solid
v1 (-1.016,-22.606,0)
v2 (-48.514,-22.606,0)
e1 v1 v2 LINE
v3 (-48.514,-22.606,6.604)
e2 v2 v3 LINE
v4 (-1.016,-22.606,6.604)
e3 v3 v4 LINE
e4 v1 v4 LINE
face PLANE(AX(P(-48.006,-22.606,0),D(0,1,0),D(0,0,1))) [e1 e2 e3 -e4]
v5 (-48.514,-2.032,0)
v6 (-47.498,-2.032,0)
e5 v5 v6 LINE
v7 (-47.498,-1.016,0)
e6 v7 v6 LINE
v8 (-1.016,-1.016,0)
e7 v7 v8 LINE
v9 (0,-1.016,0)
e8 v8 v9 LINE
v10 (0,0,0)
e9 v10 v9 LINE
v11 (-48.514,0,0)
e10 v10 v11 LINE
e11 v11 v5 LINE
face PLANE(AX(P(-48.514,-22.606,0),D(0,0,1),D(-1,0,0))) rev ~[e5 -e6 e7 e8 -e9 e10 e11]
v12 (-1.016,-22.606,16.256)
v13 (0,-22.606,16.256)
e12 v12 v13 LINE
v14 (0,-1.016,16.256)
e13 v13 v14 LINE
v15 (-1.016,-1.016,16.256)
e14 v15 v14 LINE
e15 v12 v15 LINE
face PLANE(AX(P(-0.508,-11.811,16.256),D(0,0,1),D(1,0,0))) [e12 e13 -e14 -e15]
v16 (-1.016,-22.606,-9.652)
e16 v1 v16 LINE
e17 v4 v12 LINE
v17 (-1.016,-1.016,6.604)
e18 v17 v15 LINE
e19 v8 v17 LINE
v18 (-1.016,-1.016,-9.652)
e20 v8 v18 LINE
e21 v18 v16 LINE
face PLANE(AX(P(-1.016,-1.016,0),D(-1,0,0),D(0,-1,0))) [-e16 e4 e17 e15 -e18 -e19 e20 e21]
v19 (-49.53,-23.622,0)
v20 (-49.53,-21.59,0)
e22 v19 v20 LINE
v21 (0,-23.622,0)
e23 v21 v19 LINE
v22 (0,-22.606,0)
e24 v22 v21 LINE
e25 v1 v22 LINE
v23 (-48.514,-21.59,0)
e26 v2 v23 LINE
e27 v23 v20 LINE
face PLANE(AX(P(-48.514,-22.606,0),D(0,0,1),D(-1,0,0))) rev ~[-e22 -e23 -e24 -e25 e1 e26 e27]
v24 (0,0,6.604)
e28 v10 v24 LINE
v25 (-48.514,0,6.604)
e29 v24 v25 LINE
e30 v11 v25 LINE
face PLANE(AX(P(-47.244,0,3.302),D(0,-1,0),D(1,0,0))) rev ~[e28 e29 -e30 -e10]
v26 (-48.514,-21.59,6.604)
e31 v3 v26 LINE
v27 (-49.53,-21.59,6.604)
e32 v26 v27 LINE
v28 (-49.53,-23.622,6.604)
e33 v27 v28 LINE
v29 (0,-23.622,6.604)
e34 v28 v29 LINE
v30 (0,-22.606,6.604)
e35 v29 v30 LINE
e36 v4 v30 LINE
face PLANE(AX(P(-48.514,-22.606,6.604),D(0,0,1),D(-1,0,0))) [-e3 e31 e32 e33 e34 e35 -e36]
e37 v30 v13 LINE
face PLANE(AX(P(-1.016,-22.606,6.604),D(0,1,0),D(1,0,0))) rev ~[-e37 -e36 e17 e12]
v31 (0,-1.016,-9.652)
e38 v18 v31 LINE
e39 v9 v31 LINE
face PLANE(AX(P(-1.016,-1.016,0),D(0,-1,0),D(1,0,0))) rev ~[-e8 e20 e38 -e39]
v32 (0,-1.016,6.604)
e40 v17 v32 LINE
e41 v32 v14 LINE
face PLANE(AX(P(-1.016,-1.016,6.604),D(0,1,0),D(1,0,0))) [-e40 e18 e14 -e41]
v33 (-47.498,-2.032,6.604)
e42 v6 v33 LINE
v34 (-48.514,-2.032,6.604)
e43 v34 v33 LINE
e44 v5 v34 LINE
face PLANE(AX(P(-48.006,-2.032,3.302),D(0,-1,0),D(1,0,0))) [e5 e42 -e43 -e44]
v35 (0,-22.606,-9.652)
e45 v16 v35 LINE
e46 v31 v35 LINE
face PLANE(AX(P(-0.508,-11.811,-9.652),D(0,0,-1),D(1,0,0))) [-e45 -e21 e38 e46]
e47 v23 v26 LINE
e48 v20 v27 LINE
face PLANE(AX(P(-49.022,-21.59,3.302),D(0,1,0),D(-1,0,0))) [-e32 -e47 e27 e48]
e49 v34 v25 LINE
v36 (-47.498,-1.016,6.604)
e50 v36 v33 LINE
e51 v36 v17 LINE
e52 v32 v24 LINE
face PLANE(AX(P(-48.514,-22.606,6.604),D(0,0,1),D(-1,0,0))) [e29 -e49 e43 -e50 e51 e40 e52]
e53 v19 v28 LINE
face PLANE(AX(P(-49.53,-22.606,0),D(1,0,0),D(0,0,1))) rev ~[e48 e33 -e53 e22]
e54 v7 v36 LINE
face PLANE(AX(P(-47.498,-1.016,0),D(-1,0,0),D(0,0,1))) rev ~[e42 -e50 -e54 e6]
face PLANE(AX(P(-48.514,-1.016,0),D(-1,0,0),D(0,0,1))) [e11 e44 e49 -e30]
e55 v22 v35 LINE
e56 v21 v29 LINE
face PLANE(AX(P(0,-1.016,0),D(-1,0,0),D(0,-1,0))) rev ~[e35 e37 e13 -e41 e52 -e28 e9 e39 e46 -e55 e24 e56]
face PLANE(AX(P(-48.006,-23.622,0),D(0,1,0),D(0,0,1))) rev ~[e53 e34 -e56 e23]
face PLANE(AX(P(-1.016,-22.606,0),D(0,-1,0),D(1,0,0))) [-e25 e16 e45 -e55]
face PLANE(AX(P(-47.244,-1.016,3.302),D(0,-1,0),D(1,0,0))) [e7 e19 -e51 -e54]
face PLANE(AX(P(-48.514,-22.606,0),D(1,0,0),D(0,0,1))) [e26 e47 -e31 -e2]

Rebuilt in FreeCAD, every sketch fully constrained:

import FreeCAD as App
import Part
import Sketcher
from FreeCAD import Vector
Q = App.Units.Quantity

doc = App.newDocument("Part")
body = doc.addObject("PartDesign::Body", "Body")

# Sketch on XZ plane
sketch1 = doc.addObject("Sketcher::SketchObject", "Sketch")
body.addObject(sketch1)
sketch1.AttachmentSupport = (doc.XZ_Plane, [""])
sketch1.MapMode = "FlatFace"
sketch1.addGeometry(Part.LineSegment(Vector(-47, 7, 0), Vector(-47, 0, 0)), False)
sketch1.addGeometry(Part.LineSegment(Vector(-47, 0, 0), Vector(0, 0, 0)), False)
sketch1.addGeometry(Part.LineSegment(Vector(0, 0, 0), Vector(0, 7, 0)), False)
sketch1.addGeometry(Part.LineSegment(Vector(0, 7, 0), Vector(-47, 7, 0)), False)
sketch1.addConstraint(Sketcher.Constraint("Coincident", 0, 2, 1, 1))
sketch1.addConstraint(Sketcher.Constraint("Coincident", 1, 2, 2, 1))
sketch1.addConstraint(Sketcher.Constraint("Coincident", 2, 2, 3, 1))
sketch1.addConstraint(Sketcher.Constraint("Coincident", 3, 2, 0, 1))
sketch1.addConstraint(Sketcher.Constraint("Vertical", 0))
sketch1.addConstraint(Sketcher.Constraint("Horizontal", 1))
sketch1.addConstraint(Sketcher.Constraint("Vertical", 2))
sketch1.addConstraint(Sketcher.Constraint("Horizontal", 3))
sketch1.addConstraint(Sketcher.Constraint("Coincident", 1, 2, -1, 1))
sketch1.addConstraint(Sketcher.Constraint("DistanceX", 1, 1, 1, 2, Q("1.85 in")))
sketch1.addConstraint(Sketcher.Constraint("DistanceY", 0, 2, 0, 1, Q("0.26 in")))
pad1 = doc.addObject("PartDesign::Pad", "Pad")
body.addObject(pad1)
pad1.Profile = sketch1
pad1.Length = Q("0.04 in")

# Sketch on XZ plane
sketch2 = doc.addObject("Sketcher::SketchObject", "Sketch001")
body.addObject(sketch2)
sketch2.AttachmentSupport = (doc.XZ_Plane, [""])
sketch2.MapMode = "FlatFace"
sketch2.AttachmentOffset = App.Placement(Vector(0, 0, 0.04 * 25.4), App.Rotation())
sketch2.addGeometry(Part.LineSegment(Vector(-47, 0, 0), Vector(-47, 6.6, 0)), False)
sketch2.addGeometry(Part.LineSegment(Vector(-47, 6.6, 0), Vector(-48.5, 6.6, 0)), False)
sketch2.addGeometry(Part.LineSegment(Vector(-48.5, 6.6, 0), Vector(-48.5, 0, 0)), False)
sketch2.addGeometry(Part.LineSegment(Vector(-48.5, 0, 0), Vector(-47, 0, 0)), False)
sketch2.addConstraint(Sketcher.Constraint("Coincident", 0, 2, 1, 1))
sketch2.addConstraint(Sketcher.Constraint("Coincident", 1, 2, 2, 1))
sketch2.addConstraint(Sketcher.Constraint("Coincident", 2, 2, 3, 1))
sketch2.addConstraint(Sketcher.Constraint("Coincident", 3, 2, 0, 1))
sketch2.addConstraint(Sketcher.Constraint("Vertical", 0))
sketch2.addConstraint(Sketcher.Constraint("Horizontal", 1))
sketch2.addConstraint(Sketcher.Constraint("Vertical", 2))
sketch2.addConstraint(Sketcher.Constraint("Horizontal", 3))
sketch2.addConstraint(Sketcher.Constraint("PointOnObject", 2, 2, -1))
sketch2.addConstraint(Sketcher.Constraint("DistanceX", 1, 2, 1, 1, Q("0.06 in")))
sketch2.addConstraint(Sketcher.Constraint("DistanceY", 0, 1, 0, 2, Q("0.26 in")))
sketch2.addConstraint(Sketcher.Constraint("DistanceX", 0, 2, -1, 1, Q("1.85 in")))
pad2 = doc.addObject("PartDesign::Pad", "Pad001")
body.addObject(pad2)
pad2.Profile = sketch2
pad2.Length = Q("0.04 in")
pad2.Reversed = True

# Sketch on XZ plane
sketch3 = doc.addObject("Sketcher::SketchObject", "Sketch002")
body.addObject(sketch3)
sketch3.AttachmentSupport = (doc.XZ_Plane, [""])
sketch3.MapMode = "FlatFace"
sketch3.AttachmentOffset = App.Placement(Vector(0, 0, 0.04 * 25.4), App.Rotation())
sketch3.addGeometry(Part.LineSegment(Vector(-48.5, 6.6, 0), Vector(-48.5, 0, 0)), False)
sketch3.addGeometry(Part.LineSegment(Vector(-48.5, 0, 0), Vector(-47.5, 0, 0)), False)
sketch3.addGeometry(Part.LineSegment(Vector(-47.5, 0, 0), Vector(-47.5, 6.6, 0)), False)
sketch3.addGeometry(Part.LineSegment(Vector(-47.5, 6.6, 0), Vector(-48.5, 6.6, 0)), False)
sketch3.addConstraint(Sketcher.Constraint("Coincident", 0, 2, 1, 1))
sketch3.addConstraint(Sketcher.Constraint("Coincident", 1, 2, 2, 1))
sketch3.addConstraint(Sketcher.Constraint("Coincident", 2, 2, 3, 1))
sketch3.addConstraint(Sketcher.Constraint("Coincident", 3, 2, 0, 1))
sketch3.addConstraint(Sketcher.Constraint("Vertical", 0))
sketch3.addConstraint(Sketcher.Constraint("Horizontal", 1))
sketch3.addConstraint(Sketcher.Constraint("Vertical", 2))
sketch3.addConstraint(Sketcher.Constraint("Horizontal", 3))
sketch3.addConstraint(Sketcher.Constraint("PointOnObject", 0, 2, -1))
sketch3.addConstraint(Sketcher.Constraint("DistanceX", 1, 1, 1, 2, Q("0.04 in")))
sketch3.addConstraint(Sketcher.Constraint("DistanceY", 0, 2, 0, 1, Q("0.26 in")))
sketch3.addConstraint(Sketcher.Constraint("DistanceX", 0, 2, -1, 1, Q("1.91 in")))
pad3 = doc.addObject("PartDesign::Pad", "Pad002")
body.addObject(pad3)
pad3.Profile = sketch3
pad3.Length = Q("0.04 in")

# Sketch on XZ plane
sketch4 = doc.addObject("Sketcher::SketchObject", "Sketch003")
body.addObject(sketch4)
sketch4.AttachmentSupport = (doc.XZ_Plane, [""])
sketch4.MapMode = "FlatFace"
sketch4.AttachmentOffset = App.Placement(Vector(0, 0, 0.04 * 25.4), App.Rotation())
sketch4.addGeometry(Part.LineSegment(Vector(-1, 6.6, 0), Vector(-1, 0, 0)), False)
sketch4.addGeometry(Part.LineSegment(Vector(-1, 0, 0), Vector(0, 0, 0)), False)
sketch4.addGeometry(Part.LineSegment(Vector(0, 0, 0), Vector(0, 6.6, 0)), False)
sketch4.addGeometry(Part.LineSegment(Vector(0, 6.6, 0), Vector(-1, 6.6, 0)), False)
sketch4.addConstraint(Sketcher.Constraint("Coincident", 0, 2, 1, 1))
sketch4.addConstraint(Sketcher.Constraint("Coincident", 1, 2, 2, 1))
sketch4.addConstraint(Sketcher.Constraint("Coincident", 2, 2, 3, 1))
sketch4.addConstraint(Sketcher.Constraint("Coincident", 3, 2, 0, 1))
sketch4.addConstraint(Sketcher.Constraint("Vertical", 0))
sketch4.addConstraint(Sketcher.Constraint("Horizontal", 1))
sketch4.addConstraint(Sketcher.Constraint("Vertical", 2))
sketch4.addConstraint(Sketcher.Constraint("Horizontal", 3))
sketch4.addConstraint(Sketcher.Constraint("Coincident", 1, 2, -1, 1))
sketch4.addConstraint(Sketcher.Constraint("DistanceX", 1, 1, 1, 2, Q("0.04 in")))
sketch4.addConstraint(Sketcher.Constraint("DistanceY", 0, 2, 0, 1, Q("0.26 in")))
pad4 = doc.addObject("PartDesign::Pad", "Pad003")
body.addObject(pad4)
pad4.Profile = sketch4
pad4.Length = Q("0.85 in")

# Sketch on XZ plane
sketch5 = doc.addObject("Sketcher::SketchObject", "Sketch004")
body.addObject(sketch5)
sketch5.AttachmentSupport = (doc.XZ_Plane, [""])
sketch5.MapMode = "FlatFace"
sketch5.AttachmentOffset = App.Placement(Vector(0, 0, 0.89 * 25.4), App.Rotation())
sketch5.addGeometry(Part.LineSegment(Vector(-1, 6.6, 0), Vector(-1, 0, 0)), False)
sketch5.addGeometry(Part.LineSegment(Vector(-1, 0, 0), Vector(0, 0, 0)), False)
sketch5.addGeometry(Part.LineSegment(Vector(0, 0, 0), Vector(0, 6.6, 0)), False)
sketch5.addGeometry(Part.LineSegment(Vector(0, 6.6, 0), Vector(-1, 6.6, 0)), False)
sketch5.addConstraint(Sketcher.Constraint("Coincident", 0, 2, 1, 1))
sketch5.addConstraint(Sketcher.Constraint("Coincident", 1, 2, 2, 1))
sketch5.addConstraint(Sketcher.Constraint("Coincident", 2, 2, 3, 1))
sketch5.addConstraint(Sketcher.Constraint("Coincident", 3, 2, 0, 1))
sketch5.addConstraint(Sketcher.Constraint("Vertical", 0))
sketch5.addConstraint(Sketcher.Constraint("Horizontal", 1))
sketch5.addConstraint(Sketcher.Constraint("Vertical", 2))
sketch5.addConstraint(Sketcher.Constraint("Horizontal", 3))
sketch5.addConstraint(Sketcher.Constraint("Coincident", 1, 2, -1, 1))
sketch5.addConstraint(Sketcher.Constraint("DistanceX", 1, 1, 1, 2, Q("0.04 in")))
sketch5.addConstraint(Sketcher.Constraint("DistanceY", 0, 2, 0, 1, Q("0.26 in")))
pad5 = doc.addObject("PartDesign::Pad", "Pad004")
body.addObject(pad5)
pad5.Profile = sketch5
pad5.Length = Q("0.04 in")

# Sketch on YZ plane
sketch6 = doc.addObject("Sketcher::SketchObject", "Sketch005")
body.addObject(sketch6)
sketch6.AttachmentSupport = (doc.YZ_Plane, [""])
sketch6.MapMode = "FlatFace"
sketch6.AttachmentOffset = App.Placement(Vector(0, 0, -0.04 * 25.4), App.Rotation())
sketch6.addGeometry(Part.LineSegment(Vector(-22.6, 6.6, 0), Vector(-22.6, 0, 0)), False)
sketch6.addGeometry(Part.LineSegment(Vector(-22.6, 0, 0), Vector(-23.6, 0, 0)), False)
sketch6.addGeometry(Part.LineSegment(Vector(-23.6, 0, 0), Vector(-23.6, 6.6, 0)), False)
sketch6.addGeometry(Part.LineSegment(Vector(-23.6, 6.6, 0), Vector(-22.6, 6.6, 0)), False)
sketch6.addConstraint(Sketcher.Constraint("Coincident", 0, 2, 1, 1))
sketch6.addConstraint(Sketcher.Constraint("Coincident", 1, 2, 2, 1))
sketch6.addConstraint(Sketcher.Constraint("Coincident", 2, 2, 3, 1))
sketch6.addConstraint(Sketcher.Constraint("Coincident", 3, 2, 0, 1))
sketch6.addConstraint(Sketcher.Constraint("Vertical", 0))
sketch6.addConstraint(Sketcher.Constraint("Horizontal", 1))
sketch6.addConstraint(Sketcher.Constraint("Vertical", 2))
sketch6.addConstraint(Sketcher.Constraint("Horizontal", 3))
sketch6.addConstraint(Sketcher.Constraint("PointOnObject", 0, 2, -1))
sketch6.addConstraint(Sketcher.Constraint("DistanceX", 1, 2, 1, 1, Q("0.04 in")))
sketch6.addConstraint(Sketcher.Constraint("DistanceY", 0, 2, 0, 1, Q("0.26 in")))
sketch6.addConstraint(Sketcher.Constraint("DistanceX", 0, 2, -1, 1, Q("0.89 in")))
pad6 = doc.addObject("PartDesign::Pad", "Pad005")
body.addObject(pad6)
pad6.Profile = sketch6
pad6.Length = Q("1.85 in")
pad6.Reversed = True

# Sketch on YZ plane
sketch7 = doc.addObject("Sketcher::SketchObject", "Sketch006")
body.addObject(sketch7)
sketch7.AttachmentSupport = (doc.YZ_Plane, [""])
sketch7.MapMode = "FlatFace"
sketch7.AttachmentOffset = App.Placement(Vector(0, 0, -1.89 * 25.4), App.Rotation())
sketch7.addGeometry(Part.LineSegment(Vector(-22.6, 6.6, 0), Vector(-22.6, 0, 0)), False)
sketch7.addGeometry(Part.LineSegment(Vector(-22.6, 0, 0), Vector(-23.6, 0, 0)), False)
sketch7.addGeometry(Part.LineSegment(Vector(-23.6, 0, 0), Vector(-23.6, 6.6, 0)), False)
sketch7.addGeometry(Part.LineSegment(Vector(-23.6, 6.6, 0), Vector(-22.6, 6.6, 0)), False)
sketch7.addConstraint(Sketcher.Constraint("Coincident", 0, 2, 1, 1))
sketch7.addConstraint(Sketcher.Constraint("Coincident", 1, 2, 2, 1))
sketch7.addConstraint(Sketcher.Constraint("Coincident", 2, 2, 3, 1))
sketch7.addConstraint(Sketcher.Constraint("Coincident", 3, 2, 0, 1))
sketch7.addConstraint(Sketcher.Constraint("Vertical", 0))
sketch7.addConstraint(Sketcher.Constraint("Horizontal", 1))
sketch7.addConstraint(Sketcher.Constraint("Vertical", 2))
sketch7.addConstraint(Sketcher.Constraint("Horizontal", 3))
sketch7.addConstraint(Sketcher.Constraint("PointOnObject", 0, 2, -1))
sketch7.addConstraint(Sketcher.Constraint("DistanceX", 1, 2, 1, 1, Q("0.04 in")))
sketch7.addConstraint(Sketcher.Constraint("DistanceY", 0, 2, 0, 1, Q("0.26 in")))
sketch7.addConstraint(Sketcher.Constraint("DistanceX", 0, 2, -1, 1, Q("0.89 in")))
pad7 = doc.addObject("PartDesign::Pad", "Pad006")
body.addObject(pad7)
pad7.Profile = sketch7
pad7.Length = Q("0.06 in")
pad7.Reversed = True

# Sketch on XZ plane
sketch8 = doc.addObject("Sketcher::SketchObject", "Sketch007")
body.addObject(sketch8)
sketch8.AttachmentSupport = (doc.XZ_Plane, [""])
sketch8.MapMode = "FlatFace"
sketch8.AttachmentOffset = App.Placement(Vector(0, 0, 0.89 * 25.4), App.Rotation())
sketch8.addGeometry(Part.LineSegment(Vector(-48.5, 6.6, 0), Vector(-48.5, 0, 0)), False)
sketch8.addGeometry(Part.LineSegment(Vector(-48.5, 0, 0), Vector(-49.5, 0, 0)), False)
sketch8.addGeometry(Part.LineSegment(Vector(-49.5, 0, 0), Vector(-49.5, 6.6, 0)), False)
sketch8.addGeometry(Part.LineSegment(Vector(-49.5, 6.6, 0), Vector(-48.5, 6.6, 0)), False)
sketch8.addConstraint(Sketcher.Constraint("Coincident", 0, 2, 1, 1))
sketch8.addConstraint(Sketcher.Constraint("Coincident", 1, 2, 2, 1))
sketch8.addConstraint(Sketcher.Constraint("Coincident", 2, 2, 3, 1))
sketch8.addConstraint(Sketcher.Constraint("Coincident", 3, 2, 0, 1))
sketch8.addConstraint(Sketcher.Constraint("Vertical", 0))
sketch8.addConstraint(Sketcher.Constraint("Horizontal", 1))
sketch8.addConstraint(Sketcher.Constraint("Vertical", 2))
sketch8.addConstraint(Sketcher.Constraint("Horizontal", 3))
sketch8.addConstraint(Sketcher.Constraint("PointOnObject", 0, 2, -1))
sketch8.addConstraint(Sketcher.Constraint("DistanceX", 1, 2, 1, 1, Q("0.04 in")))
sketch8.addConstraint(Sketcher.Constraint("DistanceY", 0, 2, 0, 1, Q("0.26 in")))
sketch8.addConstraint(Sketcher.Constraint("DistanceX", 0, 2, -1, 1, Q("1.91 in")))
pad8 = doc.addObject("PartDesign::Pad", "Pad007")
body.addObject(pad8)
pad8.Profile = sketch8
pad8.Length = Q("0.04 in")
pad8.Reversed = True

# Sketch on XY plane
sketch9 = doc.addObject("Sketcher::SketchObject", "Sketch008")
body.addObject(sketch9)
sketch9.AttachmentSupport = (doc.XY_Plane, [""])
sketch9.MapMode = "FlatFace"
sketch9.AttachmentOffset = App.Placement(Vector(0, 0, 0.26 * 25.4), App.Rotation())
sketch9.addGeometry(Part.LineSegment(Vector(-1, -1, 0), Vector(-1, -22.6, 0)), False)
sketch9.addGeometry(Part.LineSegment(Vector(-1, -22.6, 0), Vector(0, -22.6, 0)), False)
sketch9.addGeometry(Part.LineSegment(Vector(0, -22.6, 0), Vector(0, -1, 0)), False)
sketch9.addGeometry(Part.LineSegment(Vector(0, -1, 0), Vector(-1, -1, 0)), False)
sketch9.addConstraint(Sketcher.Constraint("Coincident", 0, 2, 1, 1))
sketch9.addConstraint(Sketcher.Constraint("Coincident", 1, 2, 2, 1))
sketch9.addConstraint(Sketcher.Constraint("Coincident", 2, 2, 3, 1))
sketch9.addConstraint(Sketcher.Constraint("Coincident", 3, 2, 0, 1))
sketch9.addConstraint(Sketcher.Constraint("Vertical", 0))
sketch9.addConstraint(Sketcher.Constraint("Horizontal", 1))
sketch9.addConstraint(Sketcher.Constraint("Vertical", 2))
sketch9.addConstraint(Sketcher.Constraint("Horizontal", 3))
sketch9.addConstraint(Sketcher.Constraint("PointOnObject", 1, 2, -2))
sketch9.addConstraint(Sketcher.Constraint("DistanceX", 1, 1, 1, 2, Q("0.04 in")))
sketch9.addConstraint(Sketcher.Constraint("DistanceY", 0, 2, 0, 1, Q("0.85 in")))
sketch9.addConstraint(Sketcher.Constraint("DistanceY", 0, 2, -1, 1, Q("0.89 in")))
pad9 = doc.addObject("PartDesign::Pad", "Pad008")
body.addObject(pad9)
pad9.Profile = sketch9
pad9.Length = Q("0.38 in")

# Sketch on XY plane
sketch10 = doc.addObject("Sketcher::SketchObject", "Sketch009")
body.addObject(sketch10)
sketch10.AttachmentSupport = (doc.XY_Plane, [""])
sketch10.MapMode = "FlatFace"
sketch10.addGeometry(Part.LineSegment(Vector(-1, -22.6, 0), Vector(-1, -1, 0)), False)
sketch10.addGeometry(Part.LineSegment(Vector(-1, -1, 0), Vector(0, -1, 0)), False)
sketch10.addGeometry(Part.LineSegment(Vector(0, -1, 0), Vector(0, -22.6, 0)), False)
sketch10.addGeometry(Part.LineSegment(Vector(0, -22.6, 0), Vector(-1, -22.6, 0)), False)
sketch10.addConstraint(Sketcher.Constraint("Coincident", 0, 2, 1, 1))
sketch10.addConstraint(Sketcher.Constraint("Coincident", 1, 2, 2, 1))
sketch10.addConstraint(Sketcher.Constraint("Coincident", 2, 2, 3, 1))
sketch10.addConstraint(Sketcher.Constraint("Coincident", 3, 2, 0, 1))
sketch10.addConstraint(Sketcher.Constraint("Vertical", 0))
sketch10.addConstraint(Sketcher.Constraint("Horizontal", 1))
sketch10.addConstraint(Sketcher.Constraint("Vertical", 2))
sketch10.addConstraint(Sketcher.Constraint("Horizontal", 3))
sketch10.addConstraint(Sketcher.Constraint("PointOnObject", 1, 2, -2))
sketch10.addConstraint(Sketcher.Constraint("DistanceX", 1, 1, 1, 2, Q("0.04 in")))
sketch10.addConstraint(Sketcher.Constraint("DistanceY", 0, 1, 0, 2, Q("0.85 in")))
sketch10.addConstraint(Sketcher.Constraint("DistanceY", 0, 2, -1, 1, Q("0.04 in")))
pad10 = doc.addObject("PartDesign::Pad", "Pad009")
body.addObject(pad10)
pad10.Profile = sketch10
pad10.Length = Q("0.38 in")
pad10.Reversed = True

doc.recompute()
